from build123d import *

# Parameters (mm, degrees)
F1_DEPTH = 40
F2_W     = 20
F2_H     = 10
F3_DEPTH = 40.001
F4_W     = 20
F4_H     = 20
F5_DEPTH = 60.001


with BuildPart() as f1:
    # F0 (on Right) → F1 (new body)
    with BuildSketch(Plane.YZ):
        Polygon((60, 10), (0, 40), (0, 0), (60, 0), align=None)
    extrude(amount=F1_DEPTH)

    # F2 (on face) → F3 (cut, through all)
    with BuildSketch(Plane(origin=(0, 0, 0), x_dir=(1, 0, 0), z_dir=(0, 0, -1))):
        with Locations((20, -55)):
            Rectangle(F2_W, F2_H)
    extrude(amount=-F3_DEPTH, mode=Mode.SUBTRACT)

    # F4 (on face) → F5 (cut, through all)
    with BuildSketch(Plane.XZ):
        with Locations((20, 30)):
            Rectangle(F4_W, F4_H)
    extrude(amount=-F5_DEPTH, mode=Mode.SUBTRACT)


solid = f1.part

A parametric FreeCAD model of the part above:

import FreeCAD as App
import Part
import Sketcher

V = App.Vector
Q = App.Units.Quantity

doc = App.newDocument("Part")
body = doc.addObject("PartDesign::Body", "Body")

# Sketch on YZ plane
sketch1 = body.newObject("Sketcher::SketchObject", "Sketch")
sketch1.AttachmentSupport = (doc.getObject("YZ_Plane"), [""])
sketch1.MapMode = "FlatFace"
sketch1.addGeometry([
    Part.LineSegment(V(60, 10, 0), V(0, 40, 0)),
    Part.LineSegment(V(0, 40, 0), V(0, 0, 0)),
    Part.LineSegment(V(0, 0, 0), V(60, 0, 0)),
    Part.LineSegment(V(60, 0, 0), V(60, 10, 0)),
], False)
sketch1.addConstraint([
    Sketcher.Constraint("Coincident", 0, 2, 1, 1),
    Sketcher.Constraint("Coincident", 1, 2, 2, 1),
    Sketcher.Constraint("Coincident", 2, 2, 3, 1),
    Sketcher.Constraint("Coincident", 3, 2, 0, 1),
    Sketcher.Constraint("Vertical", 1),
    Sketcher.Constraint("Horizontal", 2),
    Sketcher.Constraint("Vertical", 3),
    Sketcher.Constraint("Coincident", 1, 2, -1, 1),
    Sketcher.Constraint("DistanceX", 2, 1, 2, 2, Q("60 mm")),
    Sketcher.Constraint("DistanceY", 1, 2, 1, 1, Q("40 mm")),
    Sketcher.Constraint("DistanceY", 3, 1, 3, 2, Q("10 mm")),
])
pad1 = body.newObject("PartDesign::Pad", "Pad")
pad1.Profile = sketch1
pad1.Length = 40

# Sketch on XY plane
sketch2 = body.newObject("Sketcher::SketchObject", "Sketch001")
sketch2.AttachmentSupport = (doc.getObject("XY_Plane"), [""])
sketch2.MapMode = "FlatFace"
sketch2.addGeometry([
    Part.LineSegment(V(10, 50, 0), V(10, 60, 0)),
    Part.LineSegment(V(10, 60, 0), V(30, 60, 0)),
    Part.LineSegment(V(30, 60, 0), V(30, 50, 0)),
    Part.LineSegment(V(30, 50, 0), V(10, 50, 0)),
], False)
sketch2.addConstraint([
    Sketcher.Constraint("Coincident", 0, 2, 1, 1),
    Sketcher.Constraint("Coincident", 1, 2, 2, 1),
    Sketcher.Constraint("Coincident", 2, 2, 3, 1),
    Sketcher.Constraint("Coincident", 3, 2, 0, 1),
    Sketcher.Constraint("Vertical", 0),
    Sketcher.Constraint("Horizontal", 1),
    Sketcher.Constraint("Vertical", 2),
    Sketcher.Constraint("Horizontal", 3),
    Sketcher.Constraint("DistanceX", 1, 1, 1, 2, Q("20 mm")),
    Sketcher.Constraint("DistanceY", 0, 1, 0, 2, Q("10 mm")),
    Sketcher.Constraint("DistanceX", -1, 1, 0, 2, Q("10 mm")),
    Sketcher.Constraint("DistanceY", -1, 1, 0, 2, Q("60 mm")),
])
pocket1 = body.newObject("PartDesign::Pocket", "Pocket")
pocket1.Profile = sketch2
pocket1.Type = "ThroughAll"
pocket1.Reversed = True

# Sketch on XZ plane
sketch3 = body.newObject("Sketcher::SketchObject", "Sketch002")
sketch3.AttachmentSupport = (doc.getObject("XZ_Plane"), [""])
sketch3.MapMode = "FlatFace"
sketch3.addGeometry([
    Part.LineSegment(V(10, 40, 0), V(10, 20, 0)),
    Part.LineSegment(V(10, 20, 0), V(30, 20, 0)),
    Part.LineSegment(V(30, 20, 0), V(30, 40, 0)),
    Part.LineSegment(V(30, 40, 0), V(10, 40, 0)),
], False)
sketch3.addConstraint([
    Sketcher.Constraint("Coincident", 0, 2, 1, 1),
    Sketcher.Constraint("Coincident", 1, 2, 2, 1),
    Sketcher.Constraint("Coincident", 2, 2, 3, 1),
    Sketcher.Constraint("Coincident", 3, 2, 0, 1),
    Sketcher.Constraint("Vertical", 0),
    Sketcher.Constraint("Horizontal", 1),
    Sketcher.Constraint("Vertical", 2),
    Sketcher.Constraint("Horizontal", 3),
    Sketcher.Constraint("Equal", 3, 0),
    Sketcher.Constraint("DistanceX", 1, 1, 1, 2, Q("20 mm")),
    Sketcher.Constraint("DistanceX", -1, 1, 0, 2, Q("10 mm")),
    Sketcher.Constraint("DistanceY", -1, 1, 0, 2, Q("20 mm")),
])
pocket2 = body.newObject("PartDesign::Pocket", "Pocket001")
pocket2.Profile = sketch3
pocket2.Type = "ThroughAll"

doc.recompute()
